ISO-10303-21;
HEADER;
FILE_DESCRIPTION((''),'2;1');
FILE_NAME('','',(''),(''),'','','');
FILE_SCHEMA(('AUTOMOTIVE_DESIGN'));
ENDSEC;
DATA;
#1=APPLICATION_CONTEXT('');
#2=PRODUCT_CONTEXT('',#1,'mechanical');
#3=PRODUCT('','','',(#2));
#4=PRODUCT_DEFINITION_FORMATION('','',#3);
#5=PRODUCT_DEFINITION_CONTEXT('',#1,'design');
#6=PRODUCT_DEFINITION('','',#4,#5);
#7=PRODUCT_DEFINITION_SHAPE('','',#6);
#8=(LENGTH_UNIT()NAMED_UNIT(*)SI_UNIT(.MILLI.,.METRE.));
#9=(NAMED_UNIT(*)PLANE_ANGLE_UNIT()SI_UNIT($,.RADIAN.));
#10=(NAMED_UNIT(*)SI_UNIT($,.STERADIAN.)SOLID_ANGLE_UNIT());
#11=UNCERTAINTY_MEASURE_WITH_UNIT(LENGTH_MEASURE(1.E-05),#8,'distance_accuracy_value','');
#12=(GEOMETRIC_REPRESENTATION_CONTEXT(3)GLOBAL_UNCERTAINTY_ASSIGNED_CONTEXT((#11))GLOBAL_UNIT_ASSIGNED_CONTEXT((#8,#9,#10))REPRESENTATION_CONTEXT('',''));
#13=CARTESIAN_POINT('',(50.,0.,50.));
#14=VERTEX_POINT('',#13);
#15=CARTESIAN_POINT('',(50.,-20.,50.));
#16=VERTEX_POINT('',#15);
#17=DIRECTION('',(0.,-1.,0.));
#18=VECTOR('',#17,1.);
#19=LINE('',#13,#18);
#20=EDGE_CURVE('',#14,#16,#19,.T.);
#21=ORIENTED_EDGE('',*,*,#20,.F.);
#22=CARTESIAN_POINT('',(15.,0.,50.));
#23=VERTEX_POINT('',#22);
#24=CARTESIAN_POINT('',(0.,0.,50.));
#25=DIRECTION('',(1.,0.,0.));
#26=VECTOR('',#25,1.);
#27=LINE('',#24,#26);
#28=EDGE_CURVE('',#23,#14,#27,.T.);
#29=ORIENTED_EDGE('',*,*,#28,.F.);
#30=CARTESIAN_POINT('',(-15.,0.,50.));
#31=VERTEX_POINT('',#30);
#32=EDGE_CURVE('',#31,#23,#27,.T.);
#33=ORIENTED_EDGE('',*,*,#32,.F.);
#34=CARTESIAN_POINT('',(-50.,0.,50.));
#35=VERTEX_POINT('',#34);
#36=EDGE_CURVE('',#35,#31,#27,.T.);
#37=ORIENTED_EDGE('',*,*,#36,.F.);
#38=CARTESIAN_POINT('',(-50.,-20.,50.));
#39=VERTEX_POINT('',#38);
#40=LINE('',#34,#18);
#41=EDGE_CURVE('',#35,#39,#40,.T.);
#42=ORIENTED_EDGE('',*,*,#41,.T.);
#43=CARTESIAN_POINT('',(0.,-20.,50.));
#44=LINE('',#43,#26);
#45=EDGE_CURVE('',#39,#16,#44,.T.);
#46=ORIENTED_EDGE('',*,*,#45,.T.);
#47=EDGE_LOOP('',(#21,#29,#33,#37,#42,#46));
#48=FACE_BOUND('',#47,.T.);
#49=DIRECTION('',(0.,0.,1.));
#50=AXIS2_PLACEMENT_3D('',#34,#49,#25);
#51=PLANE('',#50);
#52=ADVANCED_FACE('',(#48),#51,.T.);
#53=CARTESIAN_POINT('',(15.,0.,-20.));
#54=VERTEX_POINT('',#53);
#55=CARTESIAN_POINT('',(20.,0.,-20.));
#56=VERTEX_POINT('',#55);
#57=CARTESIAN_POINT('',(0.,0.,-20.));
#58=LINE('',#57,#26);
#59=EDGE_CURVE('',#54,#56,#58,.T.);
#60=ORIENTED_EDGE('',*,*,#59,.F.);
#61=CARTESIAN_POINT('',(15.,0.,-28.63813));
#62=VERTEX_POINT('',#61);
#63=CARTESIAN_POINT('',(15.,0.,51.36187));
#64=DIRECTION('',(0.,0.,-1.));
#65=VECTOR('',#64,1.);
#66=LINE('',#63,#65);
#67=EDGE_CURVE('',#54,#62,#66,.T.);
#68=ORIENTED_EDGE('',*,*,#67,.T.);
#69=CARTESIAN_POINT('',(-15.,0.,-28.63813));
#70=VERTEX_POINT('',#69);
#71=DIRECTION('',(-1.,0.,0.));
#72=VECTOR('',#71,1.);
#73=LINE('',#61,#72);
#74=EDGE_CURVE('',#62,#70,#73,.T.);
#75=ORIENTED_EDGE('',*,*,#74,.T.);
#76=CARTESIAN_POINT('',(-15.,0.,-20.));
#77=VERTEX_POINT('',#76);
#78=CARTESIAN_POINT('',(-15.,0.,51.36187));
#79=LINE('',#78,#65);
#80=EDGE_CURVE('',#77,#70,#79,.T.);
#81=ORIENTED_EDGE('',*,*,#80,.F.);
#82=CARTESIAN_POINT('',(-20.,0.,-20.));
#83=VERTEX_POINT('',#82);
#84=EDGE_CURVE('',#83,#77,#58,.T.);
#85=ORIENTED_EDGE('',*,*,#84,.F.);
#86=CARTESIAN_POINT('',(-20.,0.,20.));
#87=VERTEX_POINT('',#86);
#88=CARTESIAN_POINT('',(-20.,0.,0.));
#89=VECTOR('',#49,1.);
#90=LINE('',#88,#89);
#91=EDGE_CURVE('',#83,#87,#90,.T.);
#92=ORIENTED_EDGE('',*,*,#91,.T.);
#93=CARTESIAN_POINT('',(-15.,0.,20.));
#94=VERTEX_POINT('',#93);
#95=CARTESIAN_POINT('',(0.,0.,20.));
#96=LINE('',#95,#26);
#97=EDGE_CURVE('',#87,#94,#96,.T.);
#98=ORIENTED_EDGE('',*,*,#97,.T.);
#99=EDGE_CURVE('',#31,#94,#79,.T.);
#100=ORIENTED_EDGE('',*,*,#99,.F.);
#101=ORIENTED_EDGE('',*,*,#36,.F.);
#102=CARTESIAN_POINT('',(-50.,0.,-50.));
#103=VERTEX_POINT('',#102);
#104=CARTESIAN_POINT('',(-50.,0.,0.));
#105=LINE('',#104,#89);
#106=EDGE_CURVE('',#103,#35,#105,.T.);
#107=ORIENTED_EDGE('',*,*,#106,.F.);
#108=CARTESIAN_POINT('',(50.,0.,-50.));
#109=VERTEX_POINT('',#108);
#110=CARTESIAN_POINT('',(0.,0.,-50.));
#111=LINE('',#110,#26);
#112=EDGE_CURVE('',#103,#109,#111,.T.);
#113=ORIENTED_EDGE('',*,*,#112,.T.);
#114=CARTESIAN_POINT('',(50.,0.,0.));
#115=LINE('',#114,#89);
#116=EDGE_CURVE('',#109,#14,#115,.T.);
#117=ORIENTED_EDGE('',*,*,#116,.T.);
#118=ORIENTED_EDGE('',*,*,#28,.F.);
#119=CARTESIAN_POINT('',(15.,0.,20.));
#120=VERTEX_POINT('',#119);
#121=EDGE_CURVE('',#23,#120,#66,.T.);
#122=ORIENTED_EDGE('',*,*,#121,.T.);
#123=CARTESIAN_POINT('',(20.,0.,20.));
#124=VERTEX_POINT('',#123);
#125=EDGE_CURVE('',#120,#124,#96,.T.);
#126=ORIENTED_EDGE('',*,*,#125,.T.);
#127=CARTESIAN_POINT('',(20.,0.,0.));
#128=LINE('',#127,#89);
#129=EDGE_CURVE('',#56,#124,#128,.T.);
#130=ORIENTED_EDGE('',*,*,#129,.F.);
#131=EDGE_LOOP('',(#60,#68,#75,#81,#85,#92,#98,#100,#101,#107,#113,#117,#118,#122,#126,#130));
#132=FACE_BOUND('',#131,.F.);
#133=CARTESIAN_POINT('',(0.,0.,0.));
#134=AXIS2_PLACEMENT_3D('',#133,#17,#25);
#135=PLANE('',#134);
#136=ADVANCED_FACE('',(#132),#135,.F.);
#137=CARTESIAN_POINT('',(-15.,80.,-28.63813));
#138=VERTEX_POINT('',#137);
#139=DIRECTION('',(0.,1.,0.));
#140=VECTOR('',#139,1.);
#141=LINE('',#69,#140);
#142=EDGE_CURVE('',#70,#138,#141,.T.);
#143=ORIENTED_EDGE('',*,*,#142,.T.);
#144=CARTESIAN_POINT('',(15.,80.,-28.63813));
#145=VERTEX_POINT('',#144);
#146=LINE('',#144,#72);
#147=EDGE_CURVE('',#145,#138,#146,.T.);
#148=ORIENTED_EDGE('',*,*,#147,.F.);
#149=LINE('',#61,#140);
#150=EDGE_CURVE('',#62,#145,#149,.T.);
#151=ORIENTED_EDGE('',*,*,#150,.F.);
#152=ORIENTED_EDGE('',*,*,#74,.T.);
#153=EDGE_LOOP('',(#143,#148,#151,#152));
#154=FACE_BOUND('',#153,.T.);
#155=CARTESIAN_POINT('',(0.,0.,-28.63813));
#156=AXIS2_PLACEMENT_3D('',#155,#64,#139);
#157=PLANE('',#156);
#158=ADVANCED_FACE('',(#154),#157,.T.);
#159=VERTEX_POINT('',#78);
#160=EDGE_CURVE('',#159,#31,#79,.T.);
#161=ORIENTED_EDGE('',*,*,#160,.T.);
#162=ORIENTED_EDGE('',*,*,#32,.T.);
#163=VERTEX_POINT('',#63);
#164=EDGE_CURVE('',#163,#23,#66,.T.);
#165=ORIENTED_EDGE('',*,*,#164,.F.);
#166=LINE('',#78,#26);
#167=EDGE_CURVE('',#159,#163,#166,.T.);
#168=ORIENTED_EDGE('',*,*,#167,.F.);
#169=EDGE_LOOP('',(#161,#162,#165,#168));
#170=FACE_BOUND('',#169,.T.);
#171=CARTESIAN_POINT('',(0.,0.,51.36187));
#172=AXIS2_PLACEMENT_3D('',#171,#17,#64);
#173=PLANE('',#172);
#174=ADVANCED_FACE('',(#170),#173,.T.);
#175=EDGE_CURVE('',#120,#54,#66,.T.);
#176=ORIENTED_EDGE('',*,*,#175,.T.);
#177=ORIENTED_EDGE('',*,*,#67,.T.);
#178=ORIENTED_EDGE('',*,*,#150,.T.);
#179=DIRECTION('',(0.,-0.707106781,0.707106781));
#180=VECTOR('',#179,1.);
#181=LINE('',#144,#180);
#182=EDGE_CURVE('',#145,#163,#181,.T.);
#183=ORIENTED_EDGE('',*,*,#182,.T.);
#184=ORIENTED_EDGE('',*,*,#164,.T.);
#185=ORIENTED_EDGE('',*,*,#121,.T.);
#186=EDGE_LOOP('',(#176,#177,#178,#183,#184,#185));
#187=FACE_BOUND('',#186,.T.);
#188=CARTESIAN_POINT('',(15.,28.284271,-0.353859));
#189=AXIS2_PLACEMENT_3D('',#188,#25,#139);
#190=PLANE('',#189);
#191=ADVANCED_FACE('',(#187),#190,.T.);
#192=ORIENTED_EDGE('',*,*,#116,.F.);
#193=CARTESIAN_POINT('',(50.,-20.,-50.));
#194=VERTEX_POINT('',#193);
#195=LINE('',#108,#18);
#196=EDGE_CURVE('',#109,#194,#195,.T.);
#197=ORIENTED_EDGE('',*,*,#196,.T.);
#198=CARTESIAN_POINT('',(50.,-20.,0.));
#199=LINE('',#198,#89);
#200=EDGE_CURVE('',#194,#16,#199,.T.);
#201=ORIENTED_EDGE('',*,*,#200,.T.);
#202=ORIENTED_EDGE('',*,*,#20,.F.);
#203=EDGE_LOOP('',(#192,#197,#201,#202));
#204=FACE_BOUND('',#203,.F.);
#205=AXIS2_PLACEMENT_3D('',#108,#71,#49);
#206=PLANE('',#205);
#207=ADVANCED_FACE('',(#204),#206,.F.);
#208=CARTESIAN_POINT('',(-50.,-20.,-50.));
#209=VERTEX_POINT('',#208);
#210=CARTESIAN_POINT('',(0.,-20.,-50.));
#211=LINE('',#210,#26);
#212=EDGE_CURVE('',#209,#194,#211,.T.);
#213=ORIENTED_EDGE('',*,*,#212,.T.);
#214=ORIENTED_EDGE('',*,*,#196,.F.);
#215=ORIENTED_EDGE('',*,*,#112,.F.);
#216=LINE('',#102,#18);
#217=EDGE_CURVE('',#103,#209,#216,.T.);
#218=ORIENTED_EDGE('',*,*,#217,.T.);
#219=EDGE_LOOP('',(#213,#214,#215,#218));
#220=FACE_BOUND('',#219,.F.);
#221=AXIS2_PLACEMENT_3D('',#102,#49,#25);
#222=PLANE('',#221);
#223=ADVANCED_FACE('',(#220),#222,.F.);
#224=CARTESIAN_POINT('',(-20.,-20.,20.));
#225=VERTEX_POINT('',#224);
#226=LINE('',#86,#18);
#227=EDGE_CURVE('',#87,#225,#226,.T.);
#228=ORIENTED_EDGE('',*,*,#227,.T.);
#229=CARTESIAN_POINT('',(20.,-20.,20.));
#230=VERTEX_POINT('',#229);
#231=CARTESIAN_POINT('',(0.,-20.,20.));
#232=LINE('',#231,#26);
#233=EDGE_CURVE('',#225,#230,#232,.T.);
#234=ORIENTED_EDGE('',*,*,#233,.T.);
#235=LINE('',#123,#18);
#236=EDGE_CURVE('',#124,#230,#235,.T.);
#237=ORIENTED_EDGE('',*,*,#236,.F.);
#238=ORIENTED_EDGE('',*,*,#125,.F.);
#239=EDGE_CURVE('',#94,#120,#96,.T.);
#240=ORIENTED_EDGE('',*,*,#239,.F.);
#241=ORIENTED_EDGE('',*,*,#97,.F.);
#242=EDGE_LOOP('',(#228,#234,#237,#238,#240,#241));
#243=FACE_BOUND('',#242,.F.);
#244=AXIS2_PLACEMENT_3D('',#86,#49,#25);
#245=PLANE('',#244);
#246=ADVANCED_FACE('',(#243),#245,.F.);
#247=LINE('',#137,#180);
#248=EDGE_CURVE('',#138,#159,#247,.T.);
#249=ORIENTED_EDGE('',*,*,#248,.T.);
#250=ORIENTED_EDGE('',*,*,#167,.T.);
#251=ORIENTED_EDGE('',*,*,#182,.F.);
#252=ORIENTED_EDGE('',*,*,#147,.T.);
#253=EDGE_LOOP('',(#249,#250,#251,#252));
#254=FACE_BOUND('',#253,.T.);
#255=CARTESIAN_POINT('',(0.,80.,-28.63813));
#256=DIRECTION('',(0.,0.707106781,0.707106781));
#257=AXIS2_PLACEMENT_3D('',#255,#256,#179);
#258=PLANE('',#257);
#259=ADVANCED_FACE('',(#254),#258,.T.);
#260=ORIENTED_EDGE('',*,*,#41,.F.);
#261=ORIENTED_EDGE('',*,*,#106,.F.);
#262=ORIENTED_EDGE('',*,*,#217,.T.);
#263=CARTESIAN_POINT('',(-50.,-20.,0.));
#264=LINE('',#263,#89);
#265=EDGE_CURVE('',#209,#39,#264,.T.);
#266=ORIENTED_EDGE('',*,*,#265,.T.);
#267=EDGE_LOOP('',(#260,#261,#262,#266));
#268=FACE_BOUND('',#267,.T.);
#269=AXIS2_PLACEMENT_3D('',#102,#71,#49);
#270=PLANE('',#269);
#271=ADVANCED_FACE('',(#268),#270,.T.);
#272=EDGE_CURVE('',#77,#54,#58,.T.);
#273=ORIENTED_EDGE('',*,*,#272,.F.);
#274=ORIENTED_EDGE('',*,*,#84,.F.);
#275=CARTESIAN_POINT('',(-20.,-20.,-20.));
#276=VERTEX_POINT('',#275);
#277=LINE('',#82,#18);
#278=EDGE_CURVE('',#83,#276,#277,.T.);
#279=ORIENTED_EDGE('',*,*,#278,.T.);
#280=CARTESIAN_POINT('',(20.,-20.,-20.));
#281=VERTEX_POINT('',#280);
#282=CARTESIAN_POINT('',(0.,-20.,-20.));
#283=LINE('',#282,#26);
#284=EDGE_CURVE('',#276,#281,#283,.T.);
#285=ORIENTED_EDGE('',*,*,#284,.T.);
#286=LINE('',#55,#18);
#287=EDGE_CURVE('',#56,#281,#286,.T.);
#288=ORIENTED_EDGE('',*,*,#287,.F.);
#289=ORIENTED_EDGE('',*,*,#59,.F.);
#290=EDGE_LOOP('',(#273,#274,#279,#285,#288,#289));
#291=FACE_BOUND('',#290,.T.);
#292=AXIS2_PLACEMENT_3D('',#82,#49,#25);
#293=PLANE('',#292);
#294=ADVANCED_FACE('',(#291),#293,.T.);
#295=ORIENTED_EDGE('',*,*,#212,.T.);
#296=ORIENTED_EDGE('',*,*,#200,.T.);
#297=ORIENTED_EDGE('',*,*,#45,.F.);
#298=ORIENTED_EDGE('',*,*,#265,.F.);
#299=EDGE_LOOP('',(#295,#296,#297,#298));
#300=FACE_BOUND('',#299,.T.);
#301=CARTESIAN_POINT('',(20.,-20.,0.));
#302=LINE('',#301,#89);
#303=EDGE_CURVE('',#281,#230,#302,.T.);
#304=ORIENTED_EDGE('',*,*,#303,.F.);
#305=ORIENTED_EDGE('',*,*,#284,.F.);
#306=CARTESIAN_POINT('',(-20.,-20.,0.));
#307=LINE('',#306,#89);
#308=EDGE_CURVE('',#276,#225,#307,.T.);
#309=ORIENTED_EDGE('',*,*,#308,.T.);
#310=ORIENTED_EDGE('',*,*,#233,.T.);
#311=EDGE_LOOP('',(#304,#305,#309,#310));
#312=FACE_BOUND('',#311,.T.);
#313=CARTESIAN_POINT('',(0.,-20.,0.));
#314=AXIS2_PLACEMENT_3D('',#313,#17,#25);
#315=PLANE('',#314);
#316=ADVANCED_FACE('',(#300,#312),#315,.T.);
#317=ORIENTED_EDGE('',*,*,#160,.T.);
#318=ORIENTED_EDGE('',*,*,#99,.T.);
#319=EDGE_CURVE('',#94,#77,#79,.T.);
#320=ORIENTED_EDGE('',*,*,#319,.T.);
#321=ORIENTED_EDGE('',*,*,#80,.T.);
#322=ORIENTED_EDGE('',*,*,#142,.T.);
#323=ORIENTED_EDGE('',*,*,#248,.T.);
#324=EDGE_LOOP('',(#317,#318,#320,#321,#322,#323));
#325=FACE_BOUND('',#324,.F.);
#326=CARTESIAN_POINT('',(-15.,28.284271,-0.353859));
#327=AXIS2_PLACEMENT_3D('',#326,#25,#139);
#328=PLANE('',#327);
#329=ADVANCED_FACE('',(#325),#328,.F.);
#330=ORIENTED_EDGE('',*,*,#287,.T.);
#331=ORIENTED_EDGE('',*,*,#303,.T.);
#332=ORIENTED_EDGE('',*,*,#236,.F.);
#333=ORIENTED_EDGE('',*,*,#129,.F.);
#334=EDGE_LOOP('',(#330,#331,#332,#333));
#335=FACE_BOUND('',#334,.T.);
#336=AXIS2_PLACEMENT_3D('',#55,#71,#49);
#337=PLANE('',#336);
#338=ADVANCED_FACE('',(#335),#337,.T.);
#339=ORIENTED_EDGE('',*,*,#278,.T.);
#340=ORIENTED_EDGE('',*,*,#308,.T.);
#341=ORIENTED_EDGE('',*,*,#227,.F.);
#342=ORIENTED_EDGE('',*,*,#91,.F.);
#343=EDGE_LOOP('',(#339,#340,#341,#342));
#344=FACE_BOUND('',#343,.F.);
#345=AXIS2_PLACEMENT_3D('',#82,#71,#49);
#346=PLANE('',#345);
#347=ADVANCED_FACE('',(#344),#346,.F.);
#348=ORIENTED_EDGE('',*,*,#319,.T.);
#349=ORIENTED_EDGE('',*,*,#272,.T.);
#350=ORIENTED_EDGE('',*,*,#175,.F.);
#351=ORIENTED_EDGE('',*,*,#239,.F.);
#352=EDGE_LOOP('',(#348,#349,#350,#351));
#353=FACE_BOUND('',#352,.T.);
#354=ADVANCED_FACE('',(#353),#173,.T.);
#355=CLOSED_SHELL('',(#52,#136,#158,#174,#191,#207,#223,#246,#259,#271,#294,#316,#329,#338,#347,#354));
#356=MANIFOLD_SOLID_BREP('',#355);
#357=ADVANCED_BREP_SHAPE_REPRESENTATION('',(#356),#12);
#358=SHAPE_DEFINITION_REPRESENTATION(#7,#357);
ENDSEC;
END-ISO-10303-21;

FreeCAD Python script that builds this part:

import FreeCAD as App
import Part
import Sketcher
from FreeCAD import Vector


def add_polygon(sketch, points):
    """Adds a closed chain of lines whose ends are joined by coincident constraints."""
    first, n = sketch.GeometryCount, len(points)
    for a, b in zip(points, points[1:] + points[:1]):
        sketch.addGeometry(Part.LineSegment(App.Vector(*a, 0), App.Vector(*b, 0)), False)
    for i in range(n):
        sketch.addConstraint(Sketcher.Constraint("Coincident", first + i, 2, first + (i + 1) % n, 1))

doc = App.newDocument("Part")
params = doc.addObject("Spreadsheet::Sheet", "Params")
for row, (alias, value) in enumerate([
    ("sketch1_width", "100 mm"),
    ("sketch1_width2", "40 mm"),
    ("pad1_length", "20 mm"),
    ("sketch2_width", "80 mm"),
    ("pad2_length", "30 mm"),
], start=1):
    params.set(f"A{row}", alias)
    params.set(f"B{row}", "=" + value)
    params.setAlias(f"B{row}", alias)

body = doc.addObject("PartDesign::Body", "Body")

# Sketch on XZ plane
sketch1 = doc.addObject("Sketcher::SketchObject", "Sketch")
body.addObject(sketch1)
sketch1.AttachmentSupport = (doc.XZ_Plane, [""])
sketch1.MapMode = "FlatFace"
add_polygon(sketch1, [(-50, 50), (-50, -50), (50, -50), (50, 50)])  # lines 0-3
add_polygon(sketch1, [(20, -20), (-20, -20), (-20, 20), (20, 20)])  # lines 4-7
sketch1.addConstraint(Sketcher.Constraint("Vertical", 0))
sketch1.addConstraint(Sketcher.Constraint("Horizontal", 1))
sketch1.addConstraint(Sketcher.Constraint("Vertical", 2))
sketch1.addConstraint(Sketcher.Constraint("Horizontal", 3))
sketch1.addConstraint(Sketcher.Constraint("Horizontal", 4))
sketch1.addConstraint(Sketcher.Constraint("Vertical", 5))
sketch1.addConstraint(Sketcher.Constraint("Horizontal", 6))
sketch1.addConstraint(Sketcher.Constraint("Vertical", 7))
sketch1.addConstraint(Sketcher.Constraint("Symmetric", 0, 2, 2, 2, -1, 1))
sketch1.addConstraint(Sketcher.Constraint("Symmetric", 4, 2, 6, 2, -1, 1))
sketch1.addConstraint(Sketcher.Constraint("Equal", 3, 0))
sketch1.addConstraint(Sketcher.Constraint("Equal", 6, 5))
sketch1.addConstraint(Sketcher.Constraint("DistanceX", 1, 1, 1, 2, 100.0))
sketch1.addConstraint(Sketcher.Constraint("DistanceX", 4, 2, 4, 1, 40.0))
sketch1.setExpression("Constraints[20]", "Params.sketch1_width")
sketch1.setExpression("Constraints[21]", "Params.sketch1_width2")
pad1 = doc.addObject("PartDesign::Pad", "Pad")
body.addObject(pad1)
pad1.Profile = sketch1
pad1.setExpression("Length", "Params.pad1_length")

# Sketch on YZ plane
sketch2 = doc.addObject("Sketcher::SketchObject", "Sketch001")
body.addObject(sketch2)
sketch2.AttachmentSupport = (doc.YZ_Plane, [""])
sketch2.MapMode = "FlatFace"
add_polygon(sketch2, [(80, -29), (0, 51), (0, -29)])  # lines 0-2
sketch2.addConstraint(Sketcher.Constraint("Vertical", 1))
sketch2.addConstraint(Sketcher.Constraint("Horizontal", 2))
sketch2.addConstraint(Sketcher.Constraint("PointOnObject", 0, 2, -2))
sketch2.addConstraint(Sketcher.Constraint("Equal", 2, 1))
sketch2.addConstraint(Sketcher.Constraint("DistanceX", 2, 1, 2, 2, 80.0))
sketch2.addConstraint(Sketcher.Constraint("DistanceY", -1, 1, 0, 2, 51.36187))
sketch2.setExpression("Constraints[7]", "Params.sketch2_width")
pad2 = doc.addObject("PartDesign::Pad", "Pad001")
body.addObject(pad2)
pad2.Profile = sketch2
pad2.setExpression("Length", "Params.pad2_length")
pad2.Midplane = True

doc.recompute()
